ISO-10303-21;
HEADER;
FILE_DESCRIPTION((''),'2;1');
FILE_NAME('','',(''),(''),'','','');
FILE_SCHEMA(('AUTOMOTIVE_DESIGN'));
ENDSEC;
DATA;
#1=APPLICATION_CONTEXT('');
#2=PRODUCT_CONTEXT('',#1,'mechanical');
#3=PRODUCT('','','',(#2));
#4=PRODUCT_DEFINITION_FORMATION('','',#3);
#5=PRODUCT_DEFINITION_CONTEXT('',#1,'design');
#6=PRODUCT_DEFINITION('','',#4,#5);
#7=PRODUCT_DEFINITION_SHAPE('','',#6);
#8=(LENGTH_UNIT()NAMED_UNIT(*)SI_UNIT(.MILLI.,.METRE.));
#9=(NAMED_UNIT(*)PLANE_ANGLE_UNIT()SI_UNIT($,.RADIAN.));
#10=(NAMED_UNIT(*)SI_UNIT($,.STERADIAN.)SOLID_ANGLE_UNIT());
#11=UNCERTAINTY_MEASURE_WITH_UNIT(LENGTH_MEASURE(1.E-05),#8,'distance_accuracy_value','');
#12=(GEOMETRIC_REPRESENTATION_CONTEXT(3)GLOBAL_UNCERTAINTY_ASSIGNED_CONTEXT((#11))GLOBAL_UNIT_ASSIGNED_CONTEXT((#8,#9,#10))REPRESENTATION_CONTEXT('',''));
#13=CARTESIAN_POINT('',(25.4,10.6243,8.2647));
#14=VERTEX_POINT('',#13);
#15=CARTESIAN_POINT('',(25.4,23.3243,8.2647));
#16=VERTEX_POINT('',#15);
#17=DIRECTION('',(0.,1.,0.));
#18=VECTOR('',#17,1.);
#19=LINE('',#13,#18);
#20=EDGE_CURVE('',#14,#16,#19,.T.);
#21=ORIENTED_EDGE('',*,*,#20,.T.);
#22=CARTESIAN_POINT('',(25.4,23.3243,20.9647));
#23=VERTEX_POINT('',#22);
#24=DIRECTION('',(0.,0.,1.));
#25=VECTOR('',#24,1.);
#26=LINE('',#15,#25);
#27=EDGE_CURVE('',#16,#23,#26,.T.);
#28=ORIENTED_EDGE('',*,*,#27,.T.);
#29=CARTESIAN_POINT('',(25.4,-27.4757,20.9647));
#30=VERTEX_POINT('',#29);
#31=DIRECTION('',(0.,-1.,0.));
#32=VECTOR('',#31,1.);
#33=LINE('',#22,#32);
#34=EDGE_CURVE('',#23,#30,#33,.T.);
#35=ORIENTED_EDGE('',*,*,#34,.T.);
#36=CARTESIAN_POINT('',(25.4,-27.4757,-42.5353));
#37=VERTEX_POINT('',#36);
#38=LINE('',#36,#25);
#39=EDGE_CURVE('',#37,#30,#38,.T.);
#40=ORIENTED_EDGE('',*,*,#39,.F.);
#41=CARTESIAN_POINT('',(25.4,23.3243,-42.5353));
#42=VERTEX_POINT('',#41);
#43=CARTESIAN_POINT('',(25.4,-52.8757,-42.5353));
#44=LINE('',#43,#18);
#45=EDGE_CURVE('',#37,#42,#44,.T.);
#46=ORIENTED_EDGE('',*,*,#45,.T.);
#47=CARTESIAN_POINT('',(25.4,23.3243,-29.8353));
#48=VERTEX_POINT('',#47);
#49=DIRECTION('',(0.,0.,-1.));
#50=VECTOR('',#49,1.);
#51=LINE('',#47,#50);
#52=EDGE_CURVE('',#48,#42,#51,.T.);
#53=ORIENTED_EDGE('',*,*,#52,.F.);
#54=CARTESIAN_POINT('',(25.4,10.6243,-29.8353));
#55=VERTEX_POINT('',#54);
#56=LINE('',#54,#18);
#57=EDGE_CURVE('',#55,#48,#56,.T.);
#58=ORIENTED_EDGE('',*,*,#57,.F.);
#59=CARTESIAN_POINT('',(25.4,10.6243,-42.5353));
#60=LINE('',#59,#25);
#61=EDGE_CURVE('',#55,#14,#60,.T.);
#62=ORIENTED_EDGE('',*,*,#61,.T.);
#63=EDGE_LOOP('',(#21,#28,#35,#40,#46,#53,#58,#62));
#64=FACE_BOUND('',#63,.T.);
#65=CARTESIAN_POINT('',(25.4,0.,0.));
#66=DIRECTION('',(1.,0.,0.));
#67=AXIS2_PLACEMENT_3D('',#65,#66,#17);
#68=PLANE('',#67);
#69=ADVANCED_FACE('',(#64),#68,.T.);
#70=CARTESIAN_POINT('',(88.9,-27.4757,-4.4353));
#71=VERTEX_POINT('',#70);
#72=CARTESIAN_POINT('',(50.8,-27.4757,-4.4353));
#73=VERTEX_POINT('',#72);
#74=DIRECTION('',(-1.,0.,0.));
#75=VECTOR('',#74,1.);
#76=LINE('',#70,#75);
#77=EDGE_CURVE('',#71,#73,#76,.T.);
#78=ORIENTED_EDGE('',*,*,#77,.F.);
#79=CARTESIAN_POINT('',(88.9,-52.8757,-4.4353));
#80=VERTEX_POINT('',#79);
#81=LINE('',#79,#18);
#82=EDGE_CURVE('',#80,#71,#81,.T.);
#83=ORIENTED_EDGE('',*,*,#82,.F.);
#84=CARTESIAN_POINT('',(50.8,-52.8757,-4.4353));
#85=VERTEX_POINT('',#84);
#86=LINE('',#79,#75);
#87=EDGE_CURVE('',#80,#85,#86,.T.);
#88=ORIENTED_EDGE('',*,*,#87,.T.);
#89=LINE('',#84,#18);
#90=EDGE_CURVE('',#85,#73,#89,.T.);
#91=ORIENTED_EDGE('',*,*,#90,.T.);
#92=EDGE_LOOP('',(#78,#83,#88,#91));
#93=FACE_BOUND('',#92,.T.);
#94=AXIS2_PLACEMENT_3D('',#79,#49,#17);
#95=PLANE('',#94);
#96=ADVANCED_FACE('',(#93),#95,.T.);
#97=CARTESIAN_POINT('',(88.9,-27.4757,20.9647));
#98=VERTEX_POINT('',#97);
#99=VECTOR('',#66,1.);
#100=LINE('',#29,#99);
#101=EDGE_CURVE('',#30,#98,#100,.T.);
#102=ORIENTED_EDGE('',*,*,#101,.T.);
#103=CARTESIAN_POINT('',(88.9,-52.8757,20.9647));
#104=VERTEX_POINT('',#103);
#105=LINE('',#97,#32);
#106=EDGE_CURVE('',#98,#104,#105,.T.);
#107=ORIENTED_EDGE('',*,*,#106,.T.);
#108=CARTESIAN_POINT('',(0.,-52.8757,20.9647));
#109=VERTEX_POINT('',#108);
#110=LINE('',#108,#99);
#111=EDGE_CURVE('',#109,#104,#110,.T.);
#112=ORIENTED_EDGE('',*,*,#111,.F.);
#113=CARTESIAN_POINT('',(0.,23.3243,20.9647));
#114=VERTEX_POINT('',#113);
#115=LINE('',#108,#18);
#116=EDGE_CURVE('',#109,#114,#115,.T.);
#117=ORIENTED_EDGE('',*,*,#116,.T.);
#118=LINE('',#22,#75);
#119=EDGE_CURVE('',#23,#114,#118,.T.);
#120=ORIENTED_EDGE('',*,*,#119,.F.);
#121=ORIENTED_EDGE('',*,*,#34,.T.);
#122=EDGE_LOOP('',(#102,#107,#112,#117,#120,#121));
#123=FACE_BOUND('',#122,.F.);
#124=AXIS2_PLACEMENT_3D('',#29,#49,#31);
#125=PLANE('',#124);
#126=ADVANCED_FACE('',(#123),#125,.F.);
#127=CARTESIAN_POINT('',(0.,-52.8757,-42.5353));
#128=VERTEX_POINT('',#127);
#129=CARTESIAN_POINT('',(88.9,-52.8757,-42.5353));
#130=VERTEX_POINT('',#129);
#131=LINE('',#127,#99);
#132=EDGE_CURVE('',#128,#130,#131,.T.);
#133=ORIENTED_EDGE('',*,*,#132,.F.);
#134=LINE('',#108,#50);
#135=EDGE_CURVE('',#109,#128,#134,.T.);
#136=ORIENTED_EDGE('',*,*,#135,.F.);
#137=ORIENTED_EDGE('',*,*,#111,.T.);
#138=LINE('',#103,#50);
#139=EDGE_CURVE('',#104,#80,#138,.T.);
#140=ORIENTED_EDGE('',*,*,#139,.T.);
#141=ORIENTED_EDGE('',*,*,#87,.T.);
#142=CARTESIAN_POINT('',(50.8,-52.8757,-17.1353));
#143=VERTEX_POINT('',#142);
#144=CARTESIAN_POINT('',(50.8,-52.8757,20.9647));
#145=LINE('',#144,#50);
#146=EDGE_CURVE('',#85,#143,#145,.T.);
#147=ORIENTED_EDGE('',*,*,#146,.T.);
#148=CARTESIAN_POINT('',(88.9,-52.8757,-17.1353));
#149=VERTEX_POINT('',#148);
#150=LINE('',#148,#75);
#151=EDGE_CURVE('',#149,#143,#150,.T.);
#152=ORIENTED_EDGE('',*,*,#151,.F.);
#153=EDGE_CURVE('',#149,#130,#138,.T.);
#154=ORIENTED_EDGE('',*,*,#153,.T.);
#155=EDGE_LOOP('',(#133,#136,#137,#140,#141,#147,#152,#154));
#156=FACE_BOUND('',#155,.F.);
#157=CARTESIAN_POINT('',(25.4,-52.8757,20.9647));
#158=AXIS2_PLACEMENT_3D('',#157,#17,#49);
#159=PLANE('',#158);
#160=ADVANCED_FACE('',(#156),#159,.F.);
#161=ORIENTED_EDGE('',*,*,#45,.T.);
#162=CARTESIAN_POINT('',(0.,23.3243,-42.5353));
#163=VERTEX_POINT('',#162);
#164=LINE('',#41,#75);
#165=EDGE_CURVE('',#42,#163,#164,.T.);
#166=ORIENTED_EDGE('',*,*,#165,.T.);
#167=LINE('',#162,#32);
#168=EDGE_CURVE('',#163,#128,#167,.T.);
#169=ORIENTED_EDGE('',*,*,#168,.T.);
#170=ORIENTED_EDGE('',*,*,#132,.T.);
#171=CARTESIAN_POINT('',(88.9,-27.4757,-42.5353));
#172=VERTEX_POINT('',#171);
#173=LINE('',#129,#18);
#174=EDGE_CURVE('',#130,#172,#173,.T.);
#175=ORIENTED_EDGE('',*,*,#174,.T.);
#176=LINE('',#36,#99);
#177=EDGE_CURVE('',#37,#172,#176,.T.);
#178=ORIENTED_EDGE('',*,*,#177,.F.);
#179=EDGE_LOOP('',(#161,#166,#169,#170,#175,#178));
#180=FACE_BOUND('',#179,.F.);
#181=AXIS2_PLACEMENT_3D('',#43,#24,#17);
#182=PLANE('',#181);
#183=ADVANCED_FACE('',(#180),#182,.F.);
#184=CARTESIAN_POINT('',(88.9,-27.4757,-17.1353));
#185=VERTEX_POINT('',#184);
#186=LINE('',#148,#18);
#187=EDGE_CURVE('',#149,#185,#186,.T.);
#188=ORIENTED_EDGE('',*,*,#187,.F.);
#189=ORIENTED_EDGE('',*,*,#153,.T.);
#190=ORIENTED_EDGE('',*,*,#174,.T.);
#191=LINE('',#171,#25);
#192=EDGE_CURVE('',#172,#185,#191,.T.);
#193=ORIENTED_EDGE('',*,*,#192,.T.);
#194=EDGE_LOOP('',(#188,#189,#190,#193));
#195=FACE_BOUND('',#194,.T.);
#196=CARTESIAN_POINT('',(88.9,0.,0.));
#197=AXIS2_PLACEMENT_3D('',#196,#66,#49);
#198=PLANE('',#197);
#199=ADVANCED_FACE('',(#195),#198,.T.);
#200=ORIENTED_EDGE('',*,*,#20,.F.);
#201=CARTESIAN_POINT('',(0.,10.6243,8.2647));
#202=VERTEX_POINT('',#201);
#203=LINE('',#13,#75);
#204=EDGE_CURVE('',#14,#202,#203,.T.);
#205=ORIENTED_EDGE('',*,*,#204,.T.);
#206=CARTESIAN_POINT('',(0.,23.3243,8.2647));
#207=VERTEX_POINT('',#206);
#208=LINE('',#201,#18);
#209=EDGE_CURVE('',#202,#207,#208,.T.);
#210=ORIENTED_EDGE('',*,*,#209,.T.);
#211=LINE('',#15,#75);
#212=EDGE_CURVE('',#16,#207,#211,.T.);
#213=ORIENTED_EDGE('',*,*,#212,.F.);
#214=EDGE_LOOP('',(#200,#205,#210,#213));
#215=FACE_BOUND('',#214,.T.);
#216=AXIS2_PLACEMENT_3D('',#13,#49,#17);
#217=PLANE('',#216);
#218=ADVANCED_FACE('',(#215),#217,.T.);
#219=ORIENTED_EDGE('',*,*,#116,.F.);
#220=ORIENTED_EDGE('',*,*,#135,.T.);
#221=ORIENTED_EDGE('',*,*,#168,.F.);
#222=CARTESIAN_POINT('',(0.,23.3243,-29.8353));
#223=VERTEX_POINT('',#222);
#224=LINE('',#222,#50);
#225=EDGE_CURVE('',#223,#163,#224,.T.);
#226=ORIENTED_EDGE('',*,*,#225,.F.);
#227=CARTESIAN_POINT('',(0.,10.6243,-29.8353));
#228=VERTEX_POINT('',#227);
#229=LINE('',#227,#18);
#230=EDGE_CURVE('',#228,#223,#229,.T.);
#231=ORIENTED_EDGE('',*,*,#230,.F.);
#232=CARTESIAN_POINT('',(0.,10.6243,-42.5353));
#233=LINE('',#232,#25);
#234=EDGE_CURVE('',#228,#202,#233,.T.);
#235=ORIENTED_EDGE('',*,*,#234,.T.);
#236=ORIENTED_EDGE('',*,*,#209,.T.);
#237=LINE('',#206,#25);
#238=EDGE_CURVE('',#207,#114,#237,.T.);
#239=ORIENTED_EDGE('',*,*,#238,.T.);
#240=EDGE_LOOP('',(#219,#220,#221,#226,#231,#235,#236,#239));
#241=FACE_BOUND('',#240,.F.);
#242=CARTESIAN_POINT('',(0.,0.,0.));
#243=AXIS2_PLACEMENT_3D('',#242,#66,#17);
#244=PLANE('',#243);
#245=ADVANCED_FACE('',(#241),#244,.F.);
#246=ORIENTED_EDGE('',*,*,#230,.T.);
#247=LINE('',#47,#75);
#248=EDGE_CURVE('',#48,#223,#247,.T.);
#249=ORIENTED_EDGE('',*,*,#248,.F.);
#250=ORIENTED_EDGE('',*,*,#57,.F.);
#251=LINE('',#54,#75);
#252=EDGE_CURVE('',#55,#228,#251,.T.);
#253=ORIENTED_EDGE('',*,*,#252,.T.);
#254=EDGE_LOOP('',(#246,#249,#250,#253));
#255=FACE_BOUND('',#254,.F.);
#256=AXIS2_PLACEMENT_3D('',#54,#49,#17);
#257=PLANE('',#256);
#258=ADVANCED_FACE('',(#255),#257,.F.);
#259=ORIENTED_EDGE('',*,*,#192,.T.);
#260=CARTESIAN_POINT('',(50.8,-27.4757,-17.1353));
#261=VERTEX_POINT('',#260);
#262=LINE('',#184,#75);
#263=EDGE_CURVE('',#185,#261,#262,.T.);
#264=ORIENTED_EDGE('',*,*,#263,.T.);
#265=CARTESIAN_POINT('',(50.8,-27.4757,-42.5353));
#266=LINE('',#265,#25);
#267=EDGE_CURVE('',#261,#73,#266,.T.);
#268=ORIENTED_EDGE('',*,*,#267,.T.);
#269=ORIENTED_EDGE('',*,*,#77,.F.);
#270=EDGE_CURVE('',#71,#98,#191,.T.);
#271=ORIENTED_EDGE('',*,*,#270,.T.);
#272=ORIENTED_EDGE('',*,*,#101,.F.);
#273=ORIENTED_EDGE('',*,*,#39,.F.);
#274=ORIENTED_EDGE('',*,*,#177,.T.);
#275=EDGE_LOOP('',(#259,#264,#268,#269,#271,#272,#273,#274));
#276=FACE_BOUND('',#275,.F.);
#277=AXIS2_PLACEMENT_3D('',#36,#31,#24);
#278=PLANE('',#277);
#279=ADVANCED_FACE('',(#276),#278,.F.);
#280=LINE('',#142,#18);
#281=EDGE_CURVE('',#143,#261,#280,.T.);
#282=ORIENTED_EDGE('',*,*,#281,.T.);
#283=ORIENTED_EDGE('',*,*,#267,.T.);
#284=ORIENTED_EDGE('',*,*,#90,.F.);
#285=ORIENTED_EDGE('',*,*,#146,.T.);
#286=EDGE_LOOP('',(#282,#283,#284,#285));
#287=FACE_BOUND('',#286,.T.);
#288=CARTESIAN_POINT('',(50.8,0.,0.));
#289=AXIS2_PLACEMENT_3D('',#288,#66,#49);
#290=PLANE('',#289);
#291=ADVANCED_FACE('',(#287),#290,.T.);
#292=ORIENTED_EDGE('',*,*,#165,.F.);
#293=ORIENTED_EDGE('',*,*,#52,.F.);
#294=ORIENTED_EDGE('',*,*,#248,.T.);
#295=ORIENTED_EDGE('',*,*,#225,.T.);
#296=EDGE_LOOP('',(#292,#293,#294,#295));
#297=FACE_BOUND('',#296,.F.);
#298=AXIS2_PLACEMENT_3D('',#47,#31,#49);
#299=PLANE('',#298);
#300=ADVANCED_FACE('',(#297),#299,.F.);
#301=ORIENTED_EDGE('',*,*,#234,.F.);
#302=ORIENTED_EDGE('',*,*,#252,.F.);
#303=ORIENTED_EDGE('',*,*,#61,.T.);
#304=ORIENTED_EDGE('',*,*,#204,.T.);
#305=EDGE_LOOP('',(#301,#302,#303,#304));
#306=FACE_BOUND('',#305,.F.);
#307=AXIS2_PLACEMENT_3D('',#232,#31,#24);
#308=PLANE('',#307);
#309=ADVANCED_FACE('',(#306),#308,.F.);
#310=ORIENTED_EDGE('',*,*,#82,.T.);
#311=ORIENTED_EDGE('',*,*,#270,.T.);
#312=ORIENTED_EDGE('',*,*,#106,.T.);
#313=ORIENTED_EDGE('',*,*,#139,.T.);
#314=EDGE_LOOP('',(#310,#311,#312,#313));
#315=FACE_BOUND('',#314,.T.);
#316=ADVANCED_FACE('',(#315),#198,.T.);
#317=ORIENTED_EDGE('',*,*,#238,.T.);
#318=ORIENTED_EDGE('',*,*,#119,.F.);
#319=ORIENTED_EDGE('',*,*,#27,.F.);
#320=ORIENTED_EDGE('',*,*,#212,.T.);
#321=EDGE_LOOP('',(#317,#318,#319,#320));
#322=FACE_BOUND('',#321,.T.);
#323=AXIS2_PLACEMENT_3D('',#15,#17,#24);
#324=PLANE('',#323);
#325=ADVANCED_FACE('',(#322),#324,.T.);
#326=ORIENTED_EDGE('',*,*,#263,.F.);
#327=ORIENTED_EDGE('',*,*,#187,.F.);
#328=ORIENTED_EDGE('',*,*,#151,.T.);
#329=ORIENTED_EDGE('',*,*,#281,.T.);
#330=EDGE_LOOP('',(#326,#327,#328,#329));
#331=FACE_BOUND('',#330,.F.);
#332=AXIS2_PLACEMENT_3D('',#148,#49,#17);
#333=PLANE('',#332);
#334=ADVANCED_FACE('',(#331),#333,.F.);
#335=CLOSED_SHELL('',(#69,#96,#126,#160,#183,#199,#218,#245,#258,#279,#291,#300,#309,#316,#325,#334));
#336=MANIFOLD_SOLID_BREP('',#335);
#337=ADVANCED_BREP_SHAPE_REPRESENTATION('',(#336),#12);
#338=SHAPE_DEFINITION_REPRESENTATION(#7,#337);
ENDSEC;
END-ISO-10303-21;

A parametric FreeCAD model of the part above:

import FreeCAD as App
import Part
import Sketcher
from FreeCAD import Vector
Q = App.Units.Quantity

doc = App.newDocument("Part")
body = doc.addObject("PartDesign::Body", "Body")

# Sketch on YZ plane
sketch1 = doc.addObject("Sketcher::SketchObject", "Sketch")
body.addObject(sketch1)
sketch1.AttachmentSupport = (doc.YZ_Plane, [""])
sketch1.MapMode = "FlatFace"
sketch1.addGeometry([
    Part.LineSegment(Vector(10.6243, -42.5353, 0), Vector(10.6243, 20.9647, 0)),
    Part.LineSegment(Vector(10.6243, 20.9647, 0), Vector(-52.8757, 20.9647, 0)),
    Part.LineSegment(Vector(-52.8757, 20.9647, 0), Vector(-52.8757, -42.5353, 0)),
    Part.LineSegment(Vector(-52.8757, -42.5353, 0), Vector(10.6243, -42.5353, 0)),
], False)
sketch1.addConstraint([
    Sketcher.Constraint("Coincident", 0, 2, 1, 1),
    Sketcher.Constraint("Coincident", 1, 2, 2, 1),
    Sketcher.Constraint("Coincident", 2, 2, 3, 1),
    Sketcher.Constraint("Coincident", 3, 2, 0, 1),
    Sketcher.Constraint("Vertical", 0),
    Sketcher.Constraint("Horizontal", 1),
    Sketcher.Constraint("Vertical", 2),
    Sketcher.Constraint("Horizontal", 3),
    Sketcher.Constraint("Equal", 3, 0),
    Sketcher.Constraint("DistanceX", 1, 2, 1, 1, Q("2.5 in")),
    Sketcher.Constraint("DistanceX", -1, 1, 0, 2, 10.6243),
    Sketcher.Constraint("DistanceY", -1, 1, 0, 2, 20.9647),
])
pad1 = doc.addObject("PartDesign::Pad", "Pad")
body.addObject(pad1)
pad1.Profile = sketch1
pad1.Length = Q("1 in")

# Sketch on YZ plane
sketch2 = doc.addObject("Sketcher::SketchObject", "Sketch001")
body.addObject(sketch2)
sketch2.AttachmentSupport = (doc.YZ_Plane, [""])
sketch2.MapMode = "FlatFace"
sketch2.AttachmentOffset = App.Placement(Vector(0, 0, 1 * 25.4), App.Rotation())
sketch2.addGeometry([
    Part.LineSegment(Vector(10.6243, 20.9647, 0), Vector(10.6243, 8.2647, 0)),  # 0
    Part.LineSegment(Vector(10.6243, 8.2647, 0), Vector(23.3243, 8.2647, 0)),  # 1
    Part.LineSegment(Vector(23.3243, 8.2647, 0), Vector(23.3243, 20.9647, 0)),  # 2
    Part.LineSegment(Vector(23.3243, 20.9647, 0), Vector(10.6243, 20.9647, 0)),  # 3
    Part.LineSegment(Vector(10.6243, -29.8353, 0), Vector(10.6243, -42.5353, 0)),  # 4
    Part.LineSegment(Vector(10.6243, -42.5353, 0), Vector(23.3243, -42.5353, 0)),  # 5
    Part.LineSegment(Vector(23.3243, -42.5353, 0), Vector(23.3243, -29.8353, 0)),  # 6
    Part.LineSegment(Vector(23.3243, -29.8353, 0), Vector(10.6243, -29.8353, 0)),  # 7
], False)
sketch2.addConstraint([
    Sketcher.Constraint("Coincident", 0, 2, 1, 1),
    Sketcher.Constraint("Coincident", 1, 2, 2, 1),
    Sketcher.Constraint("Coincident", 2, 2, 3, 1),
    Sketcher.Constraint("Coincident", 3, 2, 0, 1),
    Sketcher.Constraint("Coincident", 4, 2, 5, 1),
    Sketcher.Constraint("Coincident", 5, 2, 6, 1),
    Sketcher.Constraint("Coincident", 6, 2, 7, 1),
    Sketcher.Constraint("Coincident", 7, 2, 4, 1),
    Sketcher.Constraint("Vertical", 0),
    Sketcher.Constraint("Horizontal", 1),
    Sketcher.Constraint("Vertical", 2),
    Sketcher.Constraint("Horizontal", 3),
    Sketcher.Constraint("Vertical", 4),
    Sketcher.Constraint("Horizontal", 5),
    Sketcher.Constraint("Vertical", 6),
    Sketcher.Constraint("Horizontal", 7),
    Sketcher.Constraint("Vertical", 3, 2, 4, 2),
    Sketcher.Constraint("Vertical", 2, 2, 5, 2),
    Sketcher.Constraint("Equal", 7, 0),
    Sketcher.Constraint("Equal", 2, 4),
    Sketcher.Constraint("DistanceX", 1, 1, 1, 2, Q("0.5 in")),
    Sketcher.Constraint("DistanceY", 4, 2, 0, 2, Q("2 in")),
    Sketcher.Constraint("DistanceX", -1, 1, 0, 2, 10.6243),
    Sketcher.Constraint("DistanceY", -1, 1, 0, 2, 8.2647),
])
pad2 = doc.addObject("PartDesign::Pad", "Pad001")
body.addObject(pad2)
pad2.Profile = sketch2
pad2.Length = Q("1 in")
pad2.Reversed = True

# Sketch on YZ plane
sketch3 = doc.addObject("Sketcher::SketchObject", "Sketch002")
body.addObject(sketch3)
sketch3.AttachmentSupport = (doc.YZ_Plane, [""])
sketch3.MapMode = "FlatFace"
sketch3.AttachmentOffset = App.Placement(Vector(0, 0, 1 * 25.4), App.Rotation())
sketch3.addGeometry([
    Part.LineSegment(Vector(-27.4757, 20.9647, 0), Vector(-52.8757, 20.9647, 0)),
    Part.LineSegment(Vector(-52.8757, 20.9647, 0), Vector(-52.8757, -42.5353, 0)),
    Part.LineSegment(Vector(-52.8757, -42.5353, 0), Vector(-27.4757, -42.5353, 0)),
    Part.LineSegment(Vector(-27.4757, -42.5353, 0), Vector(-27.4757, 20.9647, 0)),
], False)
sketch3.addConstraint([
    Sketcher.Constraint("Coincident", 0, 2, 1, 1),
    Sketcher.Constraint("Coincident", 1, 2, 2, 1),
    Sketcher.Constraint("Coincident", 2, 2, 3, 1),
    Sketcher.Constraint("Coincident", 3, 2, 0, 1),
    Sketcher.Constraint("Horizontal", 0),
    Sketcher.Constraint("Vertical", 1),
    Sketcher.Constraint("Horizontal", 2),
    Sketcher.Constraint("Vertical", 3),
    Sketcher.Constraint("DistanceX", 0, 2, 0, 1, Q("1 in")),
    Sketcher.Constraint("DistanceY", 1, 2, 1, 1, Q("2.5 in")),
    Sketcher.Constraint("DistanceX", 0, 2, -1, 1, 52.8757),
    Sketcher.Constraint("DistanceY", -1, 1, 0, 2, 20.9647),
])
pad3 = doc.addObject("PartDesign::Pad", "Pad002")
body.addObject(pad3)
pad3.Profile = sketch3
pad3.Length = Q("2.5 in")

# Sketch on YZ plane
sketch4 = doc.addObject("Sketcher::SketchObject", "Sketch003")
body.addObject(sketch4)
sketch4.AttachmentSupport = (doc.YZ_Plane, [""])
sketch4.MapMode = "FlatFace"
sketch4.AttachmentOffset = App.Placement(Vector(0, 0, 3.5 * 25.4), App.Rotation())
sketch4.addGeometry([
    Part.LineSegment(Vector(-27.4757, -17.1353, 0), Vector(-27.4757, -4.4353, 0)),
    Part.LineSegment(Vector(-27.4757, -4.4353, 0), Vector(-52.8757, -4.4353, 0)),
    Part.LineSegment(Vector(-52.8757, -4.4353, 0), Vector(-52.8757, -17.1353, 0)),
    Part.LineSegment(Vector(-52.8757, -17.1353, 0), Vector(-27.4757, -17.1353, 0)),
], False)
sketch4.addConstraint([
    Sketcher.Constraint("Coincident", 0, 2, 1, 1),
    Sketcher.Constraint("Coincident", 1, 2, 2, 1),
    Sketcher.Constraint("Coincident", 2, 2, 3, 1),
    Sketcher.Constraint("Coincident", 3, 2, 0, 1),
    Sketcher.Constraint("Vertical", 0),
    Sketcher.Constraint("Horizontal", 1),
    Sketcher.Constraint("Vertical", 2),
    Sketcher.Constraint("Horizontal", 3),
    Sketcher.Constraint("DistanceX", 1, 2, 1, 1, Q("1 in")),
    Sketcher.Constraint("DistanceY", 0, 1, 0, 2, Q("0.5 in")),
    Sketcher.Constraint("DistanceX", 0, 2, -1, 1, 27.4757),
    Sketcher.Constraint("DistanceY", 0, 2, -1, 1, 4.4353),
])
pocket1 = doc.addObject("PartDesign::Pocket", "Pocket")
body.addObject(pocket1)
pocket1.Profile = sketch4
pocket1.Length = Q("1.5 in")

doc.recompute()
